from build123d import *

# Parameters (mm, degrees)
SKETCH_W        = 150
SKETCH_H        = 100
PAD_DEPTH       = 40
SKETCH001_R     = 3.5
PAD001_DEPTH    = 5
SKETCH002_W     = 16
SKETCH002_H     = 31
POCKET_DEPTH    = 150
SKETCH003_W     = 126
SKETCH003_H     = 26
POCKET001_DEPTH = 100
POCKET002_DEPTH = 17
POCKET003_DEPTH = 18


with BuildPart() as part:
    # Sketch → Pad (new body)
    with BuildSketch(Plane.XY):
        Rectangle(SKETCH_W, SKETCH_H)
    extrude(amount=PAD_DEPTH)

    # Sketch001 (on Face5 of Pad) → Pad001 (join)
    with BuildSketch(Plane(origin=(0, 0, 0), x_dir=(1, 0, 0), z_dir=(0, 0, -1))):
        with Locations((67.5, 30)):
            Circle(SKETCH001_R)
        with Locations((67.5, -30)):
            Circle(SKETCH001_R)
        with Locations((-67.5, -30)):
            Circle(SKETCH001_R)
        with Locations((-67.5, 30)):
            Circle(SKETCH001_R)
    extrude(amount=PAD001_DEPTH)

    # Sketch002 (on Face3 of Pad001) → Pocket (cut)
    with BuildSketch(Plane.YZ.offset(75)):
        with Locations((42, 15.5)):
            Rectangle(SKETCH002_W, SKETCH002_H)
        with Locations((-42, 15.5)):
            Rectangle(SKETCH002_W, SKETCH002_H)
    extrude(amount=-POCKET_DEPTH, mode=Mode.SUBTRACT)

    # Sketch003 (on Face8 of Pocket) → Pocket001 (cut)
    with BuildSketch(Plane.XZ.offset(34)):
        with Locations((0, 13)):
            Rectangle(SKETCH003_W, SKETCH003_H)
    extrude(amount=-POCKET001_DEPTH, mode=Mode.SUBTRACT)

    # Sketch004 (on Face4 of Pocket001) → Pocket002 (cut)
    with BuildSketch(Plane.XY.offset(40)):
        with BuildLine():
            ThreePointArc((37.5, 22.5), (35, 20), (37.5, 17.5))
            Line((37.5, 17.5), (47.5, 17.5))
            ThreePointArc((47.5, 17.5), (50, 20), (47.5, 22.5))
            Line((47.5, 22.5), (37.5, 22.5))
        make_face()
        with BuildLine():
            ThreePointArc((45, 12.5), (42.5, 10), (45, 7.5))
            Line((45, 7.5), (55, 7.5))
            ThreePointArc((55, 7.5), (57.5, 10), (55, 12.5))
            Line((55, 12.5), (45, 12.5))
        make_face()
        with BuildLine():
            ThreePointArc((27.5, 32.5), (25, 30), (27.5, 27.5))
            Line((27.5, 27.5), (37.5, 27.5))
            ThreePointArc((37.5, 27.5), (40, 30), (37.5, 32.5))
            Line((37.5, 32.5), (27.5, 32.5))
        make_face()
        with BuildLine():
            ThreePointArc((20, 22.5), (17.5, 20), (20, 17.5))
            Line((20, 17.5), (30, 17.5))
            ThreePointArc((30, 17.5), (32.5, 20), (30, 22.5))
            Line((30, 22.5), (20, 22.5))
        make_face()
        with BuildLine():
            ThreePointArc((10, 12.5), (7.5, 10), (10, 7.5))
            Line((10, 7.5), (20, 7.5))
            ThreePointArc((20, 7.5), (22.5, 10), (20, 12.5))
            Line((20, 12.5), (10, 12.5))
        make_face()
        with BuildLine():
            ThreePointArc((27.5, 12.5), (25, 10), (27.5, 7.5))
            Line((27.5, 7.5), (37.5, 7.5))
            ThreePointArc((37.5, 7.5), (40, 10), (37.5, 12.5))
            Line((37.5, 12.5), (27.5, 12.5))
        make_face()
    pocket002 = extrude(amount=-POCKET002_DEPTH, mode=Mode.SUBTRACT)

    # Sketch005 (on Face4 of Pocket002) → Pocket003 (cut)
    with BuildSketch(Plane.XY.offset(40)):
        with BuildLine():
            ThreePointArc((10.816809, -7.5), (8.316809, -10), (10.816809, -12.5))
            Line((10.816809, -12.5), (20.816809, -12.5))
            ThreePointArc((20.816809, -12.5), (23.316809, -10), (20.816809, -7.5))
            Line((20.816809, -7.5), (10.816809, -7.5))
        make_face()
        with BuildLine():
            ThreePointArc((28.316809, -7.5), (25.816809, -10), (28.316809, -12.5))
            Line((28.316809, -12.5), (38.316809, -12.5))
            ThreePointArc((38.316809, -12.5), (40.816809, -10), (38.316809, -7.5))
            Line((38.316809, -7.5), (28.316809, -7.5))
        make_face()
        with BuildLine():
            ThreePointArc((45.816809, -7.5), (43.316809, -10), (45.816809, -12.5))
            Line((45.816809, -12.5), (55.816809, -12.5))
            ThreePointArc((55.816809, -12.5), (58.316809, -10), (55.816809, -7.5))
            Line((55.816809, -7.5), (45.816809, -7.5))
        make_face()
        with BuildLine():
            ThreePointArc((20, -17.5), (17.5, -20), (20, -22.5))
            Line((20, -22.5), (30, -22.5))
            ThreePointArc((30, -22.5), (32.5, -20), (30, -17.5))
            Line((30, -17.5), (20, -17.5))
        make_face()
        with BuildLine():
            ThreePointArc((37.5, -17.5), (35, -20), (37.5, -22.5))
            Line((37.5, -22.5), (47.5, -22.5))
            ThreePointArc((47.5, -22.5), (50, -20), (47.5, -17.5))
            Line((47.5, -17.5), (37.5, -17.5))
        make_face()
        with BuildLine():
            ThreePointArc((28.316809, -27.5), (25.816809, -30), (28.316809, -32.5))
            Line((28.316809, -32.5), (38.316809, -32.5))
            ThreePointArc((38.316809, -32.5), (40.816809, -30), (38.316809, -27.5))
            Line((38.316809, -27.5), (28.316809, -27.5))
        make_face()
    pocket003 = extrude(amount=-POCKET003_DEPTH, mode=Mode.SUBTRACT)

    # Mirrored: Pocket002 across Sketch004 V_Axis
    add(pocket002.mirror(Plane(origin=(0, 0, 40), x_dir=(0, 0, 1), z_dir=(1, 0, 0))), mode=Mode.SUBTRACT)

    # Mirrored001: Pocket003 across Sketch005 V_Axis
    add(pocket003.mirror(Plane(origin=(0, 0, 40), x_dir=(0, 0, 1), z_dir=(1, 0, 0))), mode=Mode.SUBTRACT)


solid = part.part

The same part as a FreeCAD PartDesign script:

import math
import FreeCAD as App
import Part
import Sketcher
from FreeCAD import Vector
Q = App.Units.Quantity

doc = App.newDocument("Part")
params = doc.addObject("Spreadsheet::Sheet", "Params")
for row, (alias, value) in enumerate([
    ("sketch1_width", "150 mm"),
    ("sketch1_height", "100 mm"),
    ("pad1_length", "40 mm"),
    ("sketch2_diameter", "7 mm"),
    ("pad2_length", "5 mm"),
    ("sketch3_width", "16 mm"),
    ("sketch3_height", "31 mm"),
    ("pocket1_length", "150 mm"),
    ("sketch4_width", "126 mm"),
    ("sketch4_height", "26 mm"),
    ("pocket2_length", "100 mm"),
    ("sketch5_radius", "2.5 mm"),
    ("sketch5_width", "10 mm"),
    ("pocket3_length", "17 mm"),
    ("sketch6_radius", "2.5 mm"),
    ("sketch6_width", "10 mm"),
    ("pocket4_length", "18 mm"),
], start=1):
    params.set(f"A{row}", alias)
    params.set(f"B{row}", "=" + value)
    params.setAlias(f"B{row}", alias)

body = doc.addObject("PartDesign::Body", "Body")

sketch1 = body.newObject("Sketcher::SketchObject", "Sketch")
sketch1.AttachmentSupport = (doc.getObject("XY_Plane"), [""])
sketch1.MapMode = "FlatFace"
sketch1.addGeometry([
    Part.LineSegment(Vector(-75, 50, 0), Vector(-75, -50, 0)),
    Part.LineSegment(Vector(-75, -50, 0), Vector(75, -50, 0)),
    Part.LineSegment(Vector(75, -50, 0), Vector(75, 50, 0)),
    Part.LineSegment(Vector(75, 50, 0), Vector(-75, 50, 0)),
], False)
sketch1.addConstraint([
    Sketcher.Constraint("Coincident", 0, 2, 1, 1),
    Sketcher.Constraint("Coincident", 1, 2, 2, 1),
    Sketcher.Constraint("Coincident", 2, 2, 3, 1),
    Sketcher.Constraint("Coincident", 3, 2, 0, 1),
    Sketcher.Constraint("Vertical", 0),
    Sketcher.Constraint("Horizontal", 1),
    Sketcher.Constraint("Vertical", 2),
    Sketcher.Constraint("Horizontal", 3),
    Sketcher.Constraint("Symmetric", 0, 2, 2, 2, -1, 1),
    Sketcher.Constraint("DistanceX", 1, 1, 1, 2, Q("150 mm")),
    Sketcher.Constraint("DistanceY", 0, 2, 0, 1, Q("100 mm")),
])
sketch1.setExpression("Constraints[9]", "Params.sketch1_width")
sketch1.setExpression("Constraints[10]", "Params.sketch1_height")
pad1 = body.newObject("PartDesign::Pad", "Pad")
pad1.Profile = sketch1
pad1.setExpression("Length", "Params.pad1_length")

sketch2 = body.newObject("Sketcher::SketchObject", "Sketch001")
sketch2.AttachmentSupport = (doc.getObject("XY_Plane"), [""])
sketch2.MapMode = "FlatFace"
sketch2.addGeometry([
    Part.Circle(Vector(67.5, -30, 0), Vector(0, 0, 1), 3.5),
    Part.Circle(Vector(67.5, 30, 0), Vector(0, 0, 1), 3.5),
    Part.Circle(Vector(-67.5, 30, 0), Vector(0, 0, 1), 3.5),
    Part.Circle(Vector(-67.5, -30, 0), Vector(0, 0, 1), 3.5),
], False)
sketch2.addConstraint([
    Sketcher.Constraint("Equal", 0, 1),
    Sketcher.Constraint("Equal", 1, 2),
    Sketcher.Constraint("Equal", 2, 3),
    Sketcher.Constraint("Symmetric", 0, 3, 2, 3, -1, 1),
    Sketcher.Constraint("Symmetric", 1, 3, 3, 3, -1, 1),
    Sketcher.Constraint("Symmetric", 1, 3, 2, 3, -2),
    Sketcher.Constraint("Diameter", 0, Q("7 mm")),
    Sketcher.Constraint("DistanceY", 0, 3, -1, 1, Q("30 mm")),
    Sketcher.Constraint("DistanceX", 2, 3, 1, 3, Q("135 mm")),
])
sketch2.setExpression("Constraints[6]", "Params.sketch2_diameter")
pad2 = body.newObject("PartDesign::Pad", "Pad001")
pad2.Profile = sketch2
pad2.setExpression("Length", "Params.pad2_length")
pad2.Reversed = True

sketch3 = body.newObject("Sketcher::SketchObject", "Sketch002")
sketch3.AttachmentSupport = (doc.getObject("YZ_Plane"), [""])
sketch3.MapMode = "FlatFace"
sketch3.AttachmentOffset = App.Placement(Vector(0, 0, 75), App.Rotation())
sketch3.addGeometry([
    Part.LineSegment(Vector(34, 31, 0), Vector(34, 0, 0)),
    Part.LineSegment(Vector(34, 0, 0), Vector(50, 0, 0)),
    Part.LineSegment(Vector(50, 0, 0), Vector(50, 31, 0)),
    Part.LineSegment(Vector(50, 31, 0), Vector(34, 31, 0)),
    Part.LineSegment(Vector(-50, 31, 0), Vector(-50, 0, 0)),
    Part.LineSegment(Vector(-50, 0, 0), Vector(-34, 0, 0)),
    Part.LineSegment(Vector(-34, 0, 0), Vector(-34, 31, 0)),
    Part.LineSegment(Vector(-34, 31, 0), Vector(-50, 31, 0)),
], False)
sketch3.addConstraint([
    Sketcher.Constraint("Coincident", 0, 2, 1, 1),
    Sketcher.Constraint("Coincident", 1, 2, 2, 1),
    Sketcher.Constraint("Coincident", 2, 2, 3, 1),
    Sketcher.Constraint("Coincident", 3, 2, 0, 1),
    Sketcher.Constraint("Coincident", 4, 2, 5, 1),
    Sketcher.Constraint("Coincident", 5, 2, 6, 1),
    Sketcher.Constraint("Coincident", 6, 2, 7, 1),
    Sketcher.Constraint("Coincident", 7, 2, 4, 1),
    Sketcher.Constraint("Vertical", 0),
    Sketcher.Constraint("Horizontal", 1),
    Sketcher.Constraint("Vertical", 2),
    Sketcher.Constraint("Horizontal", 3),
    Sketcher.Constraint("Vertical", 4),
    Sketcher.Constraint("Horizontal", 5),
    Sketcher.Constraint("Vertical", 6),
    Sketcher.Constraint("Horizontal", 7),
    Sketcher.Constraint("Symmetric", 1, 2, 4, 2, -1, 1),
    Sketcher.Constraint("Symmetric", 0, 2, 5, 2, -2),
    Sketcher.Constraint("Horizontal", 3, 2, 6, 2),
    Sketcher.Constraint("DistanceX", 1, 1, 1, 2, Q("16 mm")),
    Sketcher.Constraint("DistanceY", 0, 2, 0, 1, Q("31 mm")),
    Sketcher.Constraint("DistanceX", -1, 1, 0, 2, Q("34 mm")),
])
sketch3.setExpression("Constraints[19]", "Params.sketch3_width")
sketch3.setExpression("Constraints[20]", "Params.sketch3_height")
pocket1 = body.newObject("PartDesign::Pocket", "Pocket")
pocket1.Profile = sketch3
pocket1.setExpression("Length", "Params.pocket1_length")

sketch4 = body.newObject("Sketcher::SketchObject", "Sketch003")
sketch4.AttachmentSupport = (doc.getObject("XZ_Plane"), [""])
sketch4.MapMode = "FlatFace"
sketch4.AttachmentOffset = App.Placement(Vector(0, 0, 34), App.Rotation())
sketch4.addGeometry([
    Part.LineSegment(Vector(-63, 26, 0), Vector(-63, 0, 0)),
    Part.LineSegment(Vector(-63, 0, 0), Vector(63, 0, 0)),
    Part.LineSegment(Vector(63, 0, 0), Vector(63, 26, 0)),
    Part.LineSegment(Vector(63, 26, 0), Vector(-63, 26, 0)),
], False)
sketch4.addConstraint([
    Sketcher.Constraint("Coincident", 0, 2, 1, 1),
    Sketcher.Constraint("Coincident", 1, 2, 2, 1),
    Sketcher.Constraint("Coincident", 2, 2, 3, 1),
    Sketcher.Constraint("Coincident", 3, 2, 0, 1),
    Sketcher.Constraint("Vertical", 0),
    Sketcher.Constraint("Horizontal", 1),
    Sketcher.Constraint("Vertical", 2),
    Sketcher.Constraint("Horizontal", 3),
    Sketcher.Constraint("Symmetric", 0, 2, 1, 2, -1, 1),
    Sketcher.Constraint("DistanceX", 1, 1, 1, 2, Q("126 mm")),
    Sketcher.Constraint("DistanceY", 0, 2, 0, 1, Q("26 mm")),
])
sketch4.setExpression("Constraints[9]", "Params.sketch4_width")
sketch4.setExpression("Constraints[10]", "Params.sketch4_height")
pocket2 = body.newObject("PartDesign::Pocket", "Pocket001")
pocket2.Profile = sketch4
pocket2.setExpression("Length", "Params.pocket2_length")

sketch5 = body.newObject("Sketcher::SketchObject", "Sketch004")
sketch5.AttachmentSupport = (doc.getObject("XY_Plane"), [""])
sketch5.MapMode = "FlatFace"
sketch5.AttachmentOffset = App.Placement(Vector(0, 0, 40), App.Rotation())
sketch5.addGeometry([
    Part.ArcOfCircle(Part.Circle(Vector(37.5, 20, 0), Vector(0, 0, 1), 2.5), math.radians(90), math.radians(270)),
    Part.LineSegment(Vector(37.5, 17.5, 0), Vector(47.5, 17.5, 0)),
    Part.ArcOfCircle(Part.Circle(Vector(47.5, 20, 0), Vector(0, 0, 1), 2.5), math.radians(-90), math.radians(90)),
    Part.LineSegment(Vector(47.5, 22.5, 0), Vector(37.5, 22.5, 0)),
    Part.ArcOfCircle(Part.Circle(Vector(45, 10, 0), Vector(0, 0, 1), 2.5), math.radians(90), math.radians(270)),
    Part.LineSegment(Vector(45, 7.5, 0), Vector(55, 7.5, 0)),
    Part.ArcOfCircle(Part.Circle(Vector(55, 10, 0), Vector(0, 0, 1), 2.5), math.radians(-90), math.radians(90)),
    Part.LineSegment(Vector(55, 12.5, 0), Vector(45, 12.5, 0)),
    Part.ArcOfCircle(Part.Circle(Vector(27.5, 30, 0), Vector(0, 0, 1), 2.5), math.radians(90), math.radians(270)),
    Part.LineSegment(Vector(27.5, 27.5, 0), Vector(37.5, 27.5, 0)),
    Part.ArcOfCircle(Part.Circle(Vector(37.5, 30, 0), Vector(0, 0, 1), 2.5), math.radians(-90), math.radians(90)),
    Part.LineSegment(Vector(37.5, 32.5, 0), Vector(27.5, 32.5, 0)),
    Part.ArcOfCircle(Part.Circle(Vector(20, 20, 0), Vector(0, 0, 1), 2.5), math.radians(90), math.radians(270)),
    Part.LineSegment(Vector(20, 17.5, 0), Vector(30, 17.5, 0)),
    Part.ArcOfCircle(Part.Circle(Vector(30, 20, 0), Vector(0, 0, 1), 2.5), math.radians(-90), math.radians(90)),
    Part.LineSegment(Vector(30, 22.5, 0), Vector(20, 22.5, 0)),
    Part.ArcOfCircle(Part.Circle(Vector(10, 10, 0), Vector(0, 0, 1), 2.5), math.radians(90), math.radians(270)),
    Part.LineSegment(Vector(10, 7.5, 0), Vector(20, 7.5, 0)),
    Part.ArcOfCircle(Part.Circle(Vector(20, 10, 0), Vector(0, 0, 1), 2.5), math.radians(-90), math.radians(90)),
    Part.LineSegment(Vector(20, 12.5, 0), Vector(10, 12.5, 0)),
    Part.ArcOfCircle(Part.Circle(Vector(27.5, 10, 0), Vector(0, 0, 1), 2.5), math.radians(90), math.radians(270)),
    Part.LineSegment(Vector(27.5, 7.5, 0), Vector(37.5, 7.5, 0)),
    Part.ArcOfCircle(Part.Circle(Vector(37.5, 10, 0), Vector(0, 0, 1), 2.5), math.radians(-90), math.radians(90)),
    Part.LineSegment(Vector(37.5, 12.5, 0), Vector(27.5, 12.5, 0)),
], False)
sketch5.addConstraint([
    Sketcher.Constraint("Tangent", 0, 2, 1, 1),
    Sketcher.Constraint("Tangent", 1, 2, 2, 1),
    Sketcher.Constraint("Tangent", 2, 2, 3, 1),
    Sketcher.Constraint("Tangent", 3, 2, 0, 1),
    Sketcher.Constraint("Tangent", 4, 2, 5, 1),
    Sketcher.Constraint("Tangent", 5, 2, 6, 1),
    Sketcher.Constraint("Tangent", 6, 2, 7, 1),
    Sketcher.Constraint("Tangent", 7, 2, 4, 1),
    Sketcher.Constraint("Tangent", 8, 2, 9, 1),
    Sketcher.Constraint("Tangent", 9, 2, 10, 1),
    Sketcher.Constraint("Tangent", 10, 2, 11, 1),
    Sketcher.Constraint("Tangent", 11, 2, 8, 1),
    Sketcher.Constraint("Tangent", 12, 2, 13, 1),
    Sketcher.Constraint("Tangent", 13, 2, 14, 1),
    Sketcher.Constraint("Tangent", 14, 2, 15, 1),
    Sketcher.Constraint("Tangent", 15, 2, 12, 1),
    Sketcher.Constraint("Tangent", 16, 2, 17, 1),
    Sketcher.Constraint("Tangent", 17, 2, 18, 1),
    Sketcher.Constraint("Tangent", 18, 2, 19, 1),
    Sketcher.Constraint("Tangent", 19, 2, 16, 1),
    Sketcher.Constraint("Tangent", 20, 2, 21, 1),
    Sketcher.Constraint("Tangent", 21, 2, 22, 1),
    Sketcher.Constraint("Tangent", 22, 2, 23, 1),
    Sketcher.Constraint("Tangent", 23, 2, 20, 1),
    Sketcher.Constraint("Horizontal", 1),
    Sketcher.Constraint("Horizontal", 3),
    Sketcher.Constraint("Horizontal", 5),
    Sketcher.Constraint("Horizontal", 7),
    Sketcher.Constraint("Horizontal", 9),
    Sketcher.Constraint("Horizontal", 11),
    Sketcher.Constraint("Horizontal", 13),
    Sketcher.Constraint("Horizontal", 15),
    Sketcher.Constraint("Horizontal", 17),
    Sketcher.Constraint("Horizontal", 19),
    Sketcher.Constraint("Horizontal", 21),
    Sketcher.Constraint("Horizontal", 23),
    Sketcher.Constraint("Equal", 2, 4),
    Sketcher.Constraint("Equal", 6, 8),
    Sketcher.Constraint("Equal", 10, 12),
    Sketcher.Constraint("Equal", 14, 16),
    Sketcher.Constraint("Equal", 18, 20),
    Sketcher.Constraint("Horizontal", 2, 3, 12, 3),
    Sketcher.Constraint("Horizontal", 6, 3, 16, 3),
    Sketcher.Constraint("Horizontal", 18, 3, 20, 3),
    Sketcher.Constraint("Vertical", 0, 3, 10, 3),
    Sketcher.Constraint("Vertical", 12, 3, 18, 3),
    Sketcher.Constraint("Vertical", 8, 3, 20, 3),
    Sketcher.Constraint("Vertical", 10, 3, 22, 3),
    Sketcher.Constraint("Equal", 3, 5),
    Sketcher.Constraint("Equal", 7, 9),
    Sketcher.Constraint("Equal", 11, 13),
    Sketcher.Constraint("Equal", 15, 17),
    Sketcher.Constraint("Radius", 0, Q("2.5 mm")),
    Sketcher.Constraint("DistanceX", 1, 1, 1, 2, Q("10 mm")),
    Sketcher.Constraint("DistanceY", -1, 1, 0, 3, Q("20 mm")),
    Sketcher.Constraint("DistanceX", -1, 1, 4, 3, Q("45 mm")),
    Sketcher.Constraint("DistanceY", -1, 1, 4, 3, Q("10 mm")),
    Sketcher.Constraint("DistanceY", -1, 1, 8, 3, Q("30 mm")),
    Sketcher.Constraint("DistanceX", -1, 1, 12, 3, Q("20 mm")),
    Sketcher.Constraint("DistanceX", -1, 1, 0, 3, Q("37.5 mm")),
])
sketch5.setExpression("Constraints[52]", "Params.sketch5_radius")
sketch5.setExpression("Constraints[53]", "Params.sketch5_width")
pocket3 = body.newObject("PartDesign::Pocket", "Pocket002")
pocket3.Profile = sketch5
pocket3.setExpression("Length", "Params.pocket3_length")

sketch6 = body.newObject("Sketcher::SketchObject", "Sketch005")
sketch6.AttachmentSupport = (doc.getObject("XY_Plane"), [""])
sketch6.MapMode = "FlatFace"
sketch6.AttachmentOffset = App.Placement(Vector(0, 0, 40), App.Rotation())
sketch6.addGeometry([
    Part.ArcOfCircle(Part.Circle(Vector(10.8, -10, 0), Vector(0, 0, 1), 2.5), math.radians(90), math.radians(270)),
    Part.LineSegment(Vector(10.8, -12.5, 0), Vector(20.8, -12.5, 0)),
    Part.ArcOfCircle(Part.Circle(Vector(20.8, -10, 0), Vector(0, 0, 1), 2.5), math.radians(-90), math.radians(90)),
    Part.LineSegment(Vector(20.8, -7.5, 0), Vector(10.8, -7.5, 0)),
    Part.ArcOfCircle(Part.Circle(Vector(28.3, -10, 0), Vector(0, 0, 1), 2.5), math.radians(90), math.radians(270)),
    Part.LineSegment(Vector(28.3, -12.5, 0), Vector(38.3, -12.5, 0)),
    Part.ArcOfCircle(Part.Circle(Vector(38.3, -10, 0), Vector(0, 0, 1), 2.5), math.radians(-90), math.radians(90)),
    Part.LineSegment(Vector(38.3, -7.5, 0), Vector(28.3, -7.5, 0)),
    Part.ArcOfCircle(Part.Circle(Vector(45.8, -10, 0), Vector(0, 0, 1), 2.5), math.radians(90), math.radians(270)),
    Part.LineSegment(Vector(45.8, -12.5, 0), Vector(55.8, -12.5, 0)),
    Part.ArcOfCircle(Part.Circle(Vector(55.8, -10, 0), Vector(0, 0, 1), 2.5), math.radians(-90), math.radians(90)),
    Part.LineSegment(Vector(55.8, -7.5, 0), Vector(45.8, -7.5, 0)),
    Part.ArcOfCircle(Part.Circle(Vector(20, -20, 0), Vector(0, 0, 1), 2.5), math.radians(90), math.radians(270)),
    Part.LineSegment(Vector(20, -22.5, 0), Vector(30, -22.5, 0)),
    Part.ArcOfCircle(Part.Circle(Vector(30, -20, 0), Vector(0, 0, 1), 2.5), math.radians(-90), math.radians(90)),
    Part.LineSegment(Vector(30, -17.5, 0), Vector(20, -17.5, 0)),
    Part.ArcOfCircle(Part.Circle(Vector(37.5, -20, 0), Vector(0, 0, 1), 2.5), math.radians(90), math.radians(270)),
    Part.LineSegment(Vector(37.5, -22.5, 0), Vector(47.5, -22.5, 0)),
    Part.ArcOfCircle(Part.Circle(Vector(47.5, -20, 0), Vector(0, 0, 1), 2.5), math.radians(-90), math.radians(90)),
    Part.LineSegment(Vector(47.5, -17.5, 0), Vector(37.5, -17.5, 0)),
    Part.ArcOfCircle(Part.Circle(Vector(28.3, -30, 0), Vector(0, 0, 1), 2.5), math.radians(90), math.radians(270)),
    Part.LineSegment(Vector(28.3, -32.5, 0), Vector(38.3, -32.5, 0)),
    Part.ArcOfCircle(Part.Circle(Vector(38.3, -30, 0), Vector(0, 0, 1), 2.5), math.radians(-90), math.radians(90)),
    Part.LineSegment(Vector(38.3, -27.5, 0), Vector(28.3, -27.5, 0)),
], False)
sketch6.addConstraint([
    Sketcher.Constraint("Tangent", 0, 2, 1, 1),
    Sketcher.Constraint("Tangent", 1, 2, 2, 1),
    Sketcher.Constraint("Tangent", 2, 2, 3, 1),
    Sketcher.Constraint("Tangent", 3, 2, 0, 1),
    Sketcher.Constraint("Tangent", 4, 2, 5, 1),
    Sketcher.Constraint("Tangent", 5, 2, 6, 1),
    Sketcher.Constraint("Tangent", 6, 2, 7, 1),
    Sketcher.Constraint("Tangent", 7, 2, 4, 1),
    Sketcher.Constraint("Tangent", 8, 2, 9, 1),
    Sketcher.Constraint("Tangent", 9, 2, 10, 1),
    Sketcher.Constraint("Tangent", 10, 2, 11, 1),
    Sketcher.Constraint("Tangent", 11, 2, 8, 1),
    Sketcher.Constraint("Tangent", 12, 2, 13, 1),
    Sketcher.Constraint("Tangent", 13, 2, 14, 1),
    Sketcher.Constraint("Tangent", 14, 2, 15, 1),
    Sketcher.Constraint("Tangent", 15, 2, 12, 1),
    Sketcher.Constraint("Tangent", 16, 2, 17, 1),
    Sketcher.Constraint("Tangent", 17, 2, 18, 1),
    Sketcher.Constraint("Tangent", 18, 2, 19, 1),
    Sketcher.Constraint("Tangent", 19, 2, 16, 1),
    Sketcher.Constraint("Tangent", 20, 2, 21, 1),
    Sketcher.Constraint("Tangent", 21, 2, 22, 1),
    Sketcher.Constraint("Tangent", 22, 2, 23, 1),
    Sketcher.Constraint("Tangent", 23, 2, 20, 1),
    Sketcher.Constraint("Horizontal", 1),
    Sketcher.Constraint("Horizontal", 3),
    Sketcher.Constraint("Horizontal", 5),
    Sketcher.Constraint("Horizontal", 7),
    Sketcher.Constraint("Horizontal", 9),
    Sketcher.Constraint("Horizontal", 11),
    Sketcher.Constraint("Horizontal", 13),
    Sketcher.Constraint("Horizontal", 15),
    Sketcher.Constraint("Horizontal", 17),
    Sketcher.Constraint("Horizontal", 19),
    Sketcher.Constraint("Horizontal", 21),
    Sketcher.Constraint("Horizontal", 23),
    Sketcher.Constraint("Equal", 2, 4),
    Sketcher.Constraint("Equal", 6, 8),
    Sketcher.Constraint("Equal", 10, 12),
    Sketcher.Constraint("Equal", 14, 16),
    Sketcher.Constraint("Equal", 18, 20),
    Sketcher.Constraint("Horizontal", 2, 3, 4, 3),
    Sketcher.Constraint("Horizontal", 6, 3, 8, 3),
    Sketcher.Constraint("Horizontal", 14, 3, 16, 3),
    Sketcher.Constraint("Vertical", 4, 3, 20, 3),
    Sketcher.Constraint("Vertical", 6, 3, 22, 3),
    Sketcher.Constraint("Equal", 3, 5),
    Sketcher.Constraint("Equal", 7, 9),
    Sketcher.Constraint("Equal", 11, 13),
    Sketcher.Constraint("Equal", 15, 17),
    Sketcher.Constraint("Radius", 0, Q("2.5 mm")),
    Sketcher.Constraint("DistanceX", 1, 1, 1, 2, Q("10 mm")),
    Sketcher.Constraint("DistanceY", 0, 3, -1, 1, Q("10 mm")),
    Sketcher.Constraint("DistanceX", -1, 1, 12, 3, Q("20 mm")),
    Sketcher.Constraint("DistanceY", 12, 3, -1, 1, Q("20 mm")),
    Sketcher.Constraint("DistanceY", 20, 3, -1, 1, Q("30 mm")),
    Sketcher.Constraint("DistanceX", 2, 3, 8, 3, Q("25 mm")),
    Sketcher.Constraint("DistanceX", -1, 1, 16, 3, Q("37.5 mm")),
    Sketcher.Constraint("DistanceX", 2, 3, 4, 3, Q("7.5 mm")),
    Sketcher.Constraint("DistanceX", -1, 1, 0, 3, Q("10.816809 mm")),
])
sketch6.setExpression("Constraints[50]", "Params.sketch6_radius")
sketch6.setExpression("Constraints[51]", "Params.sketch6_width")
pocket4 = body.newObject("PartDesign::Pocket", "Pocket003")
pocket4.Profile = sketch6
pocket4.setExpression("Length", "Params.pocket4_length")
doc.recompute()

mirrored = body.newObject("PartDesign::Mirrored", "Mirrored")
mirrored.Originals = [pocket3]
mirrored.MirrorPlane = (doc.getObject("YZ_Plane"), [""])
body.Tip = mirrored
doc.recompute()

mirrored2 = body.newObject("PartDesign::Mirrored", "Mirrored001")
mirrored2.Originals = [pocket4]
mirrored2.MirrorPlane = (doc.getObject("YZ_Plane"), [""])
body.Tip = mirrored2

doc.recompute()
